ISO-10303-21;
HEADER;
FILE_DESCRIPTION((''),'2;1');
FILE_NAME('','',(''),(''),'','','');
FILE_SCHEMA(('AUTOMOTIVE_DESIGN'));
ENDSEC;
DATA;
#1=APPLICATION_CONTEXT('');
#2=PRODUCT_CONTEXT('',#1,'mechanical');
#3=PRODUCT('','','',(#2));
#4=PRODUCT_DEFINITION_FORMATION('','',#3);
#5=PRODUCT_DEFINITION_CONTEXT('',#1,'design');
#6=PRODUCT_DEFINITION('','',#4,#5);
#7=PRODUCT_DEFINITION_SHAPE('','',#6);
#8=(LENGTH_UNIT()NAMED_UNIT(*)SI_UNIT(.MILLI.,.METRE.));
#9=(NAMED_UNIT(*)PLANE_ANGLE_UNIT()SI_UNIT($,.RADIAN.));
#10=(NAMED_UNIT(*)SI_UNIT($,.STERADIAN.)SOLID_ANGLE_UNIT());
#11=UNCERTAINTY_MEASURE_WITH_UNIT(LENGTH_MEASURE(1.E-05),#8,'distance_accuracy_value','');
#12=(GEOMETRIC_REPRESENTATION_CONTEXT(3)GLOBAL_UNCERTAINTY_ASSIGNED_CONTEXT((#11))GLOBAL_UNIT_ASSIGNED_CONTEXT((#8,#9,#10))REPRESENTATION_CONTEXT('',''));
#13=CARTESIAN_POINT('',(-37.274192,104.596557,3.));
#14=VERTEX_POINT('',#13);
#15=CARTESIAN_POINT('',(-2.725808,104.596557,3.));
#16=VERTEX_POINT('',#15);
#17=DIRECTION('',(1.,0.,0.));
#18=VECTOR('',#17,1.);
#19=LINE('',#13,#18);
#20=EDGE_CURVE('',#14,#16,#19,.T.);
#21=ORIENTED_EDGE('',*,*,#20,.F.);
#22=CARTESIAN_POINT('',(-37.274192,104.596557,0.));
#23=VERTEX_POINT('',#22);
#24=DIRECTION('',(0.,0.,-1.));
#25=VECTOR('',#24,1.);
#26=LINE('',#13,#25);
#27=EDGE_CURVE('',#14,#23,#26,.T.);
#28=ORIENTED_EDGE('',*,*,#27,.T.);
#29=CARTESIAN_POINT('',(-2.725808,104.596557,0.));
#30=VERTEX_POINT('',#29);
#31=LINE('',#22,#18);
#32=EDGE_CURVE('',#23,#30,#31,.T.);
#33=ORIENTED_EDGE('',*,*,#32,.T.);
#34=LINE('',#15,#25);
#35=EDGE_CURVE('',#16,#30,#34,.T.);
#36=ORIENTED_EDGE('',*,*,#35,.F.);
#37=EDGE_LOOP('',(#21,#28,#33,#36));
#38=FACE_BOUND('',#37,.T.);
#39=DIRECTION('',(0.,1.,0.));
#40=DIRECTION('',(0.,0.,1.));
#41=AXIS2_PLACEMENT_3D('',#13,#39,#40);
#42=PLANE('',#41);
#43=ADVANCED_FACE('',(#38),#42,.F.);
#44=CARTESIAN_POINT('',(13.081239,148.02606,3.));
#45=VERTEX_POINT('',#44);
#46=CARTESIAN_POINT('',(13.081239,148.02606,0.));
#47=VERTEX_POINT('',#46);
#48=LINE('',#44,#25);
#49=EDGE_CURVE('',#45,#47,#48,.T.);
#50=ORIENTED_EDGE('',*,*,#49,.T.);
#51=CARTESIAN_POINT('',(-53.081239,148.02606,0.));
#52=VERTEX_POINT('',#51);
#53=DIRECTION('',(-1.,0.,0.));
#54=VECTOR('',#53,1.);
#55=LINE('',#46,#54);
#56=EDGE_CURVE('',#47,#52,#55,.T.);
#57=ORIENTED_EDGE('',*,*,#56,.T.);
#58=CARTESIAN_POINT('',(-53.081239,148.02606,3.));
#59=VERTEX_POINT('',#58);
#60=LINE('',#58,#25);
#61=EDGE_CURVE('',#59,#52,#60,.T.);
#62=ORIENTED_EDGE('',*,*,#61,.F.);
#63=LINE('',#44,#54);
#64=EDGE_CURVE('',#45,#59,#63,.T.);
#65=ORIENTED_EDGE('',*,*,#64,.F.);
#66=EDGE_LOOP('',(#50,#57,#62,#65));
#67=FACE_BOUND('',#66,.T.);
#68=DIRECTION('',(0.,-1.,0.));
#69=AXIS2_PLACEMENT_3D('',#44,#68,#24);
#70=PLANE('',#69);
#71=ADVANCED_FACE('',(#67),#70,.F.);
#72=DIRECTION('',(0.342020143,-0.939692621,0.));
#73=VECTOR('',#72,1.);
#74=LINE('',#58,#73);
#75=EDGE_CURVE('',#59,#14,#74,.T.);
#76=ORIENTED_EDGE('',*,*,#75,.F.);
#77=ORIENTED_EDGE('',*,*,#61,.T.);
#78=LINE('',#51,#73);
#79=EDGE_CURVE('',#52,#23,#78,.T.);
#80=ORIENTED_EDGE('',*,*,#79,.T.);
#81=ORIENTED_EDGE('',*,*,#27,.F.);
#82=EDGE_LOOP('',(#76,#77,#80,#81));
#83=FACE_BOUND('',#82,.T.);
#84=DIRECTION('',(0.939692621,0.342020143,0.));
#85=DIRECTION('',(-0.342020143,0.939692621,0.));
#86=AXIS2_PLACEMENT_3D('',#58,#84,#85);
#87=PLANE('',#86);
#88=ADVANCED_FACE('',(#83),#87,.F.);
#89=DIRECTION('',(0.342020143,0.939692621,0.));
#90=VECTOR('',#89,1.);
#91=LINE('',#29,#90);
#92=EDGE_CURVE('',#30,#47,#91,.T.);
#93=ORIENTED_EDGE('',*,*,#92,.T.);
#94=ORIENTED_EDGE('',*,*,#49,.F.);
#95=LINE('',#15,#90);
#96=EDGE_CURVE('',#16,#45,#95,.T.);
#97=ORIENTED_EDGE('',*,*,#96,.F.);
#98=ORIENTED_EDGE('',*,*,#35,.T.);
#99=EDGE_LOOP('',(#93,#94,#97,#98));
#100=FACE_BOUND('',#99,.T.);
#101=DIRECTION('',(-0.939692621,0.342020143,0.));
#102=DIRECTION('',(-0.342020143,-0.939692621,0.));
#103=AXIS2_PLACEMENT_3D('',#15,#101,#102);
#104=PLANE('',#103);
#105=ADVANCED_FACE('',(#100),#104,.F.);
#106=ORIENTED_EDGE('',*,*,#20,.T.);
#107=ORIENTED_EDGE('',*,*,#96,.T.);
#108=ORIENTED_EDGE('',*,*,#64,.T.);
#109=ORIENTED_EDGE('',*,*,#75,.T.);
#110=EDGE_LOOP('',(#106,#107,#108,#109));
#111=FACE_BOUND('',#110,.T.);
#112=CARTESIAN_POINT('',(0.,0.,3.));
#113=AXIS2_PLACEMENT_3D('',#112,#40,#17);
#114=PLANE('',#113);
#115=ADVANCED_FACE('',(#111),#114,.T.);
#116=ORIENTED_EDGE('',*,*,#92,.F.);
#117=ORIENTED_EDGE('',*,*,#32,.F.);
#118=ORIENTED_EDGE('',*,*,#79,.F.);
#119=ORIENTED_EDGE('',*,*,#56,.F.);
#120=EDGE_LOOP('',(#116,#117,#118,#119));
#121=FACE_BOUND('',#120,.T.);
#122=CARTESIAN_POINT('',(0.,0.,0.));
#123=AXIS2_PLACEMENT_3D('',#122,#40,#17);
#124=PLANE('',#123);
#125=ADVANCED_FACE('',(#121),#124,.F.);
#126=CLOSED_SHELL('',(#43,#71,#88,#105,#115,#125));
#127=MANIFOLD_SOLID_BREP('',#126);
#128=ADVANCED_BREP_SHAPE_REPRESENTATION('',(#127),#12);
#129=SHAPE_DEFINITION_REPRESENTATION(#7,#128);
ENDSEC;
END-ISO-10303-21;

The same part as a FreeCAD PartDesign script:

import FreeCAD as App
import Part
import Sketcher
Q = App.Units.Quantity

doc = App.newDocument("Part")
body = doc.addObject("PartDesign::Body", "Body")

sketch1 = body.newObject("Sketcher::SketchObject", "Sketch")
sketch1.AttachmentSupport = (doc.getObject("XY_Plane"), [""])
sketch1.MapMode = "FlatFace"
sketch1.addGeometry([
    Part.LineSegment(App.Vector(13, 148, 0), App.Vector(-53, 148, 0)),
    Part.LineSegment(App.Vector(-53, 148, 0), App.Vector(-37, 105, 0)),
    Part.LineSegment(App.Vector(-37, 105, 0), App.Vector(-3, 105, 0)),
    Part.LineSegment(App.Vector(-3, 105, 0), App.Vector(13, 148, 0)),
], False)
sketch1.addConstraint([
    Sketcher.Constraint("Coincident", 0, 2, 1, 1),
    Sketcher.Constraint("Coincident", 1, 2, 2, 1),
    Sketcher.Constraint("Coincident", 2, 2, 3, 1),
    Sketcher.Constraint("Coincident", 3, 2, 0, 1),
    Sketcher.Constraint("Horizontal", 0),
    Sketcher.Constraint("Horizontal", 2),
    Sketcher.Constraint("Equal", 1, 3),
    Sketcher.Constraint("Angle", 1, Q("-70 deg")),
    Sketcher.Constraint("Distance", 1, Q("46.216712 mm")),
    Sketcher.Constraint("DistanceX", 0, 2, 0, 1, Q("66.162477 mm")),
    Sketcher.Constraint("DistanceX", 0, 2, -1, 1, Q("53.081239 mm")),
    Sketcher.Constraint("DistanceY", -1, 1, 0, 2, Q("148.02606 mm")),
])
pad1 = body.newObject("PartDesign::Pad", "Pad")
pad1.Profile = sketch1
pad1.Length = 3

doc.recompute()
